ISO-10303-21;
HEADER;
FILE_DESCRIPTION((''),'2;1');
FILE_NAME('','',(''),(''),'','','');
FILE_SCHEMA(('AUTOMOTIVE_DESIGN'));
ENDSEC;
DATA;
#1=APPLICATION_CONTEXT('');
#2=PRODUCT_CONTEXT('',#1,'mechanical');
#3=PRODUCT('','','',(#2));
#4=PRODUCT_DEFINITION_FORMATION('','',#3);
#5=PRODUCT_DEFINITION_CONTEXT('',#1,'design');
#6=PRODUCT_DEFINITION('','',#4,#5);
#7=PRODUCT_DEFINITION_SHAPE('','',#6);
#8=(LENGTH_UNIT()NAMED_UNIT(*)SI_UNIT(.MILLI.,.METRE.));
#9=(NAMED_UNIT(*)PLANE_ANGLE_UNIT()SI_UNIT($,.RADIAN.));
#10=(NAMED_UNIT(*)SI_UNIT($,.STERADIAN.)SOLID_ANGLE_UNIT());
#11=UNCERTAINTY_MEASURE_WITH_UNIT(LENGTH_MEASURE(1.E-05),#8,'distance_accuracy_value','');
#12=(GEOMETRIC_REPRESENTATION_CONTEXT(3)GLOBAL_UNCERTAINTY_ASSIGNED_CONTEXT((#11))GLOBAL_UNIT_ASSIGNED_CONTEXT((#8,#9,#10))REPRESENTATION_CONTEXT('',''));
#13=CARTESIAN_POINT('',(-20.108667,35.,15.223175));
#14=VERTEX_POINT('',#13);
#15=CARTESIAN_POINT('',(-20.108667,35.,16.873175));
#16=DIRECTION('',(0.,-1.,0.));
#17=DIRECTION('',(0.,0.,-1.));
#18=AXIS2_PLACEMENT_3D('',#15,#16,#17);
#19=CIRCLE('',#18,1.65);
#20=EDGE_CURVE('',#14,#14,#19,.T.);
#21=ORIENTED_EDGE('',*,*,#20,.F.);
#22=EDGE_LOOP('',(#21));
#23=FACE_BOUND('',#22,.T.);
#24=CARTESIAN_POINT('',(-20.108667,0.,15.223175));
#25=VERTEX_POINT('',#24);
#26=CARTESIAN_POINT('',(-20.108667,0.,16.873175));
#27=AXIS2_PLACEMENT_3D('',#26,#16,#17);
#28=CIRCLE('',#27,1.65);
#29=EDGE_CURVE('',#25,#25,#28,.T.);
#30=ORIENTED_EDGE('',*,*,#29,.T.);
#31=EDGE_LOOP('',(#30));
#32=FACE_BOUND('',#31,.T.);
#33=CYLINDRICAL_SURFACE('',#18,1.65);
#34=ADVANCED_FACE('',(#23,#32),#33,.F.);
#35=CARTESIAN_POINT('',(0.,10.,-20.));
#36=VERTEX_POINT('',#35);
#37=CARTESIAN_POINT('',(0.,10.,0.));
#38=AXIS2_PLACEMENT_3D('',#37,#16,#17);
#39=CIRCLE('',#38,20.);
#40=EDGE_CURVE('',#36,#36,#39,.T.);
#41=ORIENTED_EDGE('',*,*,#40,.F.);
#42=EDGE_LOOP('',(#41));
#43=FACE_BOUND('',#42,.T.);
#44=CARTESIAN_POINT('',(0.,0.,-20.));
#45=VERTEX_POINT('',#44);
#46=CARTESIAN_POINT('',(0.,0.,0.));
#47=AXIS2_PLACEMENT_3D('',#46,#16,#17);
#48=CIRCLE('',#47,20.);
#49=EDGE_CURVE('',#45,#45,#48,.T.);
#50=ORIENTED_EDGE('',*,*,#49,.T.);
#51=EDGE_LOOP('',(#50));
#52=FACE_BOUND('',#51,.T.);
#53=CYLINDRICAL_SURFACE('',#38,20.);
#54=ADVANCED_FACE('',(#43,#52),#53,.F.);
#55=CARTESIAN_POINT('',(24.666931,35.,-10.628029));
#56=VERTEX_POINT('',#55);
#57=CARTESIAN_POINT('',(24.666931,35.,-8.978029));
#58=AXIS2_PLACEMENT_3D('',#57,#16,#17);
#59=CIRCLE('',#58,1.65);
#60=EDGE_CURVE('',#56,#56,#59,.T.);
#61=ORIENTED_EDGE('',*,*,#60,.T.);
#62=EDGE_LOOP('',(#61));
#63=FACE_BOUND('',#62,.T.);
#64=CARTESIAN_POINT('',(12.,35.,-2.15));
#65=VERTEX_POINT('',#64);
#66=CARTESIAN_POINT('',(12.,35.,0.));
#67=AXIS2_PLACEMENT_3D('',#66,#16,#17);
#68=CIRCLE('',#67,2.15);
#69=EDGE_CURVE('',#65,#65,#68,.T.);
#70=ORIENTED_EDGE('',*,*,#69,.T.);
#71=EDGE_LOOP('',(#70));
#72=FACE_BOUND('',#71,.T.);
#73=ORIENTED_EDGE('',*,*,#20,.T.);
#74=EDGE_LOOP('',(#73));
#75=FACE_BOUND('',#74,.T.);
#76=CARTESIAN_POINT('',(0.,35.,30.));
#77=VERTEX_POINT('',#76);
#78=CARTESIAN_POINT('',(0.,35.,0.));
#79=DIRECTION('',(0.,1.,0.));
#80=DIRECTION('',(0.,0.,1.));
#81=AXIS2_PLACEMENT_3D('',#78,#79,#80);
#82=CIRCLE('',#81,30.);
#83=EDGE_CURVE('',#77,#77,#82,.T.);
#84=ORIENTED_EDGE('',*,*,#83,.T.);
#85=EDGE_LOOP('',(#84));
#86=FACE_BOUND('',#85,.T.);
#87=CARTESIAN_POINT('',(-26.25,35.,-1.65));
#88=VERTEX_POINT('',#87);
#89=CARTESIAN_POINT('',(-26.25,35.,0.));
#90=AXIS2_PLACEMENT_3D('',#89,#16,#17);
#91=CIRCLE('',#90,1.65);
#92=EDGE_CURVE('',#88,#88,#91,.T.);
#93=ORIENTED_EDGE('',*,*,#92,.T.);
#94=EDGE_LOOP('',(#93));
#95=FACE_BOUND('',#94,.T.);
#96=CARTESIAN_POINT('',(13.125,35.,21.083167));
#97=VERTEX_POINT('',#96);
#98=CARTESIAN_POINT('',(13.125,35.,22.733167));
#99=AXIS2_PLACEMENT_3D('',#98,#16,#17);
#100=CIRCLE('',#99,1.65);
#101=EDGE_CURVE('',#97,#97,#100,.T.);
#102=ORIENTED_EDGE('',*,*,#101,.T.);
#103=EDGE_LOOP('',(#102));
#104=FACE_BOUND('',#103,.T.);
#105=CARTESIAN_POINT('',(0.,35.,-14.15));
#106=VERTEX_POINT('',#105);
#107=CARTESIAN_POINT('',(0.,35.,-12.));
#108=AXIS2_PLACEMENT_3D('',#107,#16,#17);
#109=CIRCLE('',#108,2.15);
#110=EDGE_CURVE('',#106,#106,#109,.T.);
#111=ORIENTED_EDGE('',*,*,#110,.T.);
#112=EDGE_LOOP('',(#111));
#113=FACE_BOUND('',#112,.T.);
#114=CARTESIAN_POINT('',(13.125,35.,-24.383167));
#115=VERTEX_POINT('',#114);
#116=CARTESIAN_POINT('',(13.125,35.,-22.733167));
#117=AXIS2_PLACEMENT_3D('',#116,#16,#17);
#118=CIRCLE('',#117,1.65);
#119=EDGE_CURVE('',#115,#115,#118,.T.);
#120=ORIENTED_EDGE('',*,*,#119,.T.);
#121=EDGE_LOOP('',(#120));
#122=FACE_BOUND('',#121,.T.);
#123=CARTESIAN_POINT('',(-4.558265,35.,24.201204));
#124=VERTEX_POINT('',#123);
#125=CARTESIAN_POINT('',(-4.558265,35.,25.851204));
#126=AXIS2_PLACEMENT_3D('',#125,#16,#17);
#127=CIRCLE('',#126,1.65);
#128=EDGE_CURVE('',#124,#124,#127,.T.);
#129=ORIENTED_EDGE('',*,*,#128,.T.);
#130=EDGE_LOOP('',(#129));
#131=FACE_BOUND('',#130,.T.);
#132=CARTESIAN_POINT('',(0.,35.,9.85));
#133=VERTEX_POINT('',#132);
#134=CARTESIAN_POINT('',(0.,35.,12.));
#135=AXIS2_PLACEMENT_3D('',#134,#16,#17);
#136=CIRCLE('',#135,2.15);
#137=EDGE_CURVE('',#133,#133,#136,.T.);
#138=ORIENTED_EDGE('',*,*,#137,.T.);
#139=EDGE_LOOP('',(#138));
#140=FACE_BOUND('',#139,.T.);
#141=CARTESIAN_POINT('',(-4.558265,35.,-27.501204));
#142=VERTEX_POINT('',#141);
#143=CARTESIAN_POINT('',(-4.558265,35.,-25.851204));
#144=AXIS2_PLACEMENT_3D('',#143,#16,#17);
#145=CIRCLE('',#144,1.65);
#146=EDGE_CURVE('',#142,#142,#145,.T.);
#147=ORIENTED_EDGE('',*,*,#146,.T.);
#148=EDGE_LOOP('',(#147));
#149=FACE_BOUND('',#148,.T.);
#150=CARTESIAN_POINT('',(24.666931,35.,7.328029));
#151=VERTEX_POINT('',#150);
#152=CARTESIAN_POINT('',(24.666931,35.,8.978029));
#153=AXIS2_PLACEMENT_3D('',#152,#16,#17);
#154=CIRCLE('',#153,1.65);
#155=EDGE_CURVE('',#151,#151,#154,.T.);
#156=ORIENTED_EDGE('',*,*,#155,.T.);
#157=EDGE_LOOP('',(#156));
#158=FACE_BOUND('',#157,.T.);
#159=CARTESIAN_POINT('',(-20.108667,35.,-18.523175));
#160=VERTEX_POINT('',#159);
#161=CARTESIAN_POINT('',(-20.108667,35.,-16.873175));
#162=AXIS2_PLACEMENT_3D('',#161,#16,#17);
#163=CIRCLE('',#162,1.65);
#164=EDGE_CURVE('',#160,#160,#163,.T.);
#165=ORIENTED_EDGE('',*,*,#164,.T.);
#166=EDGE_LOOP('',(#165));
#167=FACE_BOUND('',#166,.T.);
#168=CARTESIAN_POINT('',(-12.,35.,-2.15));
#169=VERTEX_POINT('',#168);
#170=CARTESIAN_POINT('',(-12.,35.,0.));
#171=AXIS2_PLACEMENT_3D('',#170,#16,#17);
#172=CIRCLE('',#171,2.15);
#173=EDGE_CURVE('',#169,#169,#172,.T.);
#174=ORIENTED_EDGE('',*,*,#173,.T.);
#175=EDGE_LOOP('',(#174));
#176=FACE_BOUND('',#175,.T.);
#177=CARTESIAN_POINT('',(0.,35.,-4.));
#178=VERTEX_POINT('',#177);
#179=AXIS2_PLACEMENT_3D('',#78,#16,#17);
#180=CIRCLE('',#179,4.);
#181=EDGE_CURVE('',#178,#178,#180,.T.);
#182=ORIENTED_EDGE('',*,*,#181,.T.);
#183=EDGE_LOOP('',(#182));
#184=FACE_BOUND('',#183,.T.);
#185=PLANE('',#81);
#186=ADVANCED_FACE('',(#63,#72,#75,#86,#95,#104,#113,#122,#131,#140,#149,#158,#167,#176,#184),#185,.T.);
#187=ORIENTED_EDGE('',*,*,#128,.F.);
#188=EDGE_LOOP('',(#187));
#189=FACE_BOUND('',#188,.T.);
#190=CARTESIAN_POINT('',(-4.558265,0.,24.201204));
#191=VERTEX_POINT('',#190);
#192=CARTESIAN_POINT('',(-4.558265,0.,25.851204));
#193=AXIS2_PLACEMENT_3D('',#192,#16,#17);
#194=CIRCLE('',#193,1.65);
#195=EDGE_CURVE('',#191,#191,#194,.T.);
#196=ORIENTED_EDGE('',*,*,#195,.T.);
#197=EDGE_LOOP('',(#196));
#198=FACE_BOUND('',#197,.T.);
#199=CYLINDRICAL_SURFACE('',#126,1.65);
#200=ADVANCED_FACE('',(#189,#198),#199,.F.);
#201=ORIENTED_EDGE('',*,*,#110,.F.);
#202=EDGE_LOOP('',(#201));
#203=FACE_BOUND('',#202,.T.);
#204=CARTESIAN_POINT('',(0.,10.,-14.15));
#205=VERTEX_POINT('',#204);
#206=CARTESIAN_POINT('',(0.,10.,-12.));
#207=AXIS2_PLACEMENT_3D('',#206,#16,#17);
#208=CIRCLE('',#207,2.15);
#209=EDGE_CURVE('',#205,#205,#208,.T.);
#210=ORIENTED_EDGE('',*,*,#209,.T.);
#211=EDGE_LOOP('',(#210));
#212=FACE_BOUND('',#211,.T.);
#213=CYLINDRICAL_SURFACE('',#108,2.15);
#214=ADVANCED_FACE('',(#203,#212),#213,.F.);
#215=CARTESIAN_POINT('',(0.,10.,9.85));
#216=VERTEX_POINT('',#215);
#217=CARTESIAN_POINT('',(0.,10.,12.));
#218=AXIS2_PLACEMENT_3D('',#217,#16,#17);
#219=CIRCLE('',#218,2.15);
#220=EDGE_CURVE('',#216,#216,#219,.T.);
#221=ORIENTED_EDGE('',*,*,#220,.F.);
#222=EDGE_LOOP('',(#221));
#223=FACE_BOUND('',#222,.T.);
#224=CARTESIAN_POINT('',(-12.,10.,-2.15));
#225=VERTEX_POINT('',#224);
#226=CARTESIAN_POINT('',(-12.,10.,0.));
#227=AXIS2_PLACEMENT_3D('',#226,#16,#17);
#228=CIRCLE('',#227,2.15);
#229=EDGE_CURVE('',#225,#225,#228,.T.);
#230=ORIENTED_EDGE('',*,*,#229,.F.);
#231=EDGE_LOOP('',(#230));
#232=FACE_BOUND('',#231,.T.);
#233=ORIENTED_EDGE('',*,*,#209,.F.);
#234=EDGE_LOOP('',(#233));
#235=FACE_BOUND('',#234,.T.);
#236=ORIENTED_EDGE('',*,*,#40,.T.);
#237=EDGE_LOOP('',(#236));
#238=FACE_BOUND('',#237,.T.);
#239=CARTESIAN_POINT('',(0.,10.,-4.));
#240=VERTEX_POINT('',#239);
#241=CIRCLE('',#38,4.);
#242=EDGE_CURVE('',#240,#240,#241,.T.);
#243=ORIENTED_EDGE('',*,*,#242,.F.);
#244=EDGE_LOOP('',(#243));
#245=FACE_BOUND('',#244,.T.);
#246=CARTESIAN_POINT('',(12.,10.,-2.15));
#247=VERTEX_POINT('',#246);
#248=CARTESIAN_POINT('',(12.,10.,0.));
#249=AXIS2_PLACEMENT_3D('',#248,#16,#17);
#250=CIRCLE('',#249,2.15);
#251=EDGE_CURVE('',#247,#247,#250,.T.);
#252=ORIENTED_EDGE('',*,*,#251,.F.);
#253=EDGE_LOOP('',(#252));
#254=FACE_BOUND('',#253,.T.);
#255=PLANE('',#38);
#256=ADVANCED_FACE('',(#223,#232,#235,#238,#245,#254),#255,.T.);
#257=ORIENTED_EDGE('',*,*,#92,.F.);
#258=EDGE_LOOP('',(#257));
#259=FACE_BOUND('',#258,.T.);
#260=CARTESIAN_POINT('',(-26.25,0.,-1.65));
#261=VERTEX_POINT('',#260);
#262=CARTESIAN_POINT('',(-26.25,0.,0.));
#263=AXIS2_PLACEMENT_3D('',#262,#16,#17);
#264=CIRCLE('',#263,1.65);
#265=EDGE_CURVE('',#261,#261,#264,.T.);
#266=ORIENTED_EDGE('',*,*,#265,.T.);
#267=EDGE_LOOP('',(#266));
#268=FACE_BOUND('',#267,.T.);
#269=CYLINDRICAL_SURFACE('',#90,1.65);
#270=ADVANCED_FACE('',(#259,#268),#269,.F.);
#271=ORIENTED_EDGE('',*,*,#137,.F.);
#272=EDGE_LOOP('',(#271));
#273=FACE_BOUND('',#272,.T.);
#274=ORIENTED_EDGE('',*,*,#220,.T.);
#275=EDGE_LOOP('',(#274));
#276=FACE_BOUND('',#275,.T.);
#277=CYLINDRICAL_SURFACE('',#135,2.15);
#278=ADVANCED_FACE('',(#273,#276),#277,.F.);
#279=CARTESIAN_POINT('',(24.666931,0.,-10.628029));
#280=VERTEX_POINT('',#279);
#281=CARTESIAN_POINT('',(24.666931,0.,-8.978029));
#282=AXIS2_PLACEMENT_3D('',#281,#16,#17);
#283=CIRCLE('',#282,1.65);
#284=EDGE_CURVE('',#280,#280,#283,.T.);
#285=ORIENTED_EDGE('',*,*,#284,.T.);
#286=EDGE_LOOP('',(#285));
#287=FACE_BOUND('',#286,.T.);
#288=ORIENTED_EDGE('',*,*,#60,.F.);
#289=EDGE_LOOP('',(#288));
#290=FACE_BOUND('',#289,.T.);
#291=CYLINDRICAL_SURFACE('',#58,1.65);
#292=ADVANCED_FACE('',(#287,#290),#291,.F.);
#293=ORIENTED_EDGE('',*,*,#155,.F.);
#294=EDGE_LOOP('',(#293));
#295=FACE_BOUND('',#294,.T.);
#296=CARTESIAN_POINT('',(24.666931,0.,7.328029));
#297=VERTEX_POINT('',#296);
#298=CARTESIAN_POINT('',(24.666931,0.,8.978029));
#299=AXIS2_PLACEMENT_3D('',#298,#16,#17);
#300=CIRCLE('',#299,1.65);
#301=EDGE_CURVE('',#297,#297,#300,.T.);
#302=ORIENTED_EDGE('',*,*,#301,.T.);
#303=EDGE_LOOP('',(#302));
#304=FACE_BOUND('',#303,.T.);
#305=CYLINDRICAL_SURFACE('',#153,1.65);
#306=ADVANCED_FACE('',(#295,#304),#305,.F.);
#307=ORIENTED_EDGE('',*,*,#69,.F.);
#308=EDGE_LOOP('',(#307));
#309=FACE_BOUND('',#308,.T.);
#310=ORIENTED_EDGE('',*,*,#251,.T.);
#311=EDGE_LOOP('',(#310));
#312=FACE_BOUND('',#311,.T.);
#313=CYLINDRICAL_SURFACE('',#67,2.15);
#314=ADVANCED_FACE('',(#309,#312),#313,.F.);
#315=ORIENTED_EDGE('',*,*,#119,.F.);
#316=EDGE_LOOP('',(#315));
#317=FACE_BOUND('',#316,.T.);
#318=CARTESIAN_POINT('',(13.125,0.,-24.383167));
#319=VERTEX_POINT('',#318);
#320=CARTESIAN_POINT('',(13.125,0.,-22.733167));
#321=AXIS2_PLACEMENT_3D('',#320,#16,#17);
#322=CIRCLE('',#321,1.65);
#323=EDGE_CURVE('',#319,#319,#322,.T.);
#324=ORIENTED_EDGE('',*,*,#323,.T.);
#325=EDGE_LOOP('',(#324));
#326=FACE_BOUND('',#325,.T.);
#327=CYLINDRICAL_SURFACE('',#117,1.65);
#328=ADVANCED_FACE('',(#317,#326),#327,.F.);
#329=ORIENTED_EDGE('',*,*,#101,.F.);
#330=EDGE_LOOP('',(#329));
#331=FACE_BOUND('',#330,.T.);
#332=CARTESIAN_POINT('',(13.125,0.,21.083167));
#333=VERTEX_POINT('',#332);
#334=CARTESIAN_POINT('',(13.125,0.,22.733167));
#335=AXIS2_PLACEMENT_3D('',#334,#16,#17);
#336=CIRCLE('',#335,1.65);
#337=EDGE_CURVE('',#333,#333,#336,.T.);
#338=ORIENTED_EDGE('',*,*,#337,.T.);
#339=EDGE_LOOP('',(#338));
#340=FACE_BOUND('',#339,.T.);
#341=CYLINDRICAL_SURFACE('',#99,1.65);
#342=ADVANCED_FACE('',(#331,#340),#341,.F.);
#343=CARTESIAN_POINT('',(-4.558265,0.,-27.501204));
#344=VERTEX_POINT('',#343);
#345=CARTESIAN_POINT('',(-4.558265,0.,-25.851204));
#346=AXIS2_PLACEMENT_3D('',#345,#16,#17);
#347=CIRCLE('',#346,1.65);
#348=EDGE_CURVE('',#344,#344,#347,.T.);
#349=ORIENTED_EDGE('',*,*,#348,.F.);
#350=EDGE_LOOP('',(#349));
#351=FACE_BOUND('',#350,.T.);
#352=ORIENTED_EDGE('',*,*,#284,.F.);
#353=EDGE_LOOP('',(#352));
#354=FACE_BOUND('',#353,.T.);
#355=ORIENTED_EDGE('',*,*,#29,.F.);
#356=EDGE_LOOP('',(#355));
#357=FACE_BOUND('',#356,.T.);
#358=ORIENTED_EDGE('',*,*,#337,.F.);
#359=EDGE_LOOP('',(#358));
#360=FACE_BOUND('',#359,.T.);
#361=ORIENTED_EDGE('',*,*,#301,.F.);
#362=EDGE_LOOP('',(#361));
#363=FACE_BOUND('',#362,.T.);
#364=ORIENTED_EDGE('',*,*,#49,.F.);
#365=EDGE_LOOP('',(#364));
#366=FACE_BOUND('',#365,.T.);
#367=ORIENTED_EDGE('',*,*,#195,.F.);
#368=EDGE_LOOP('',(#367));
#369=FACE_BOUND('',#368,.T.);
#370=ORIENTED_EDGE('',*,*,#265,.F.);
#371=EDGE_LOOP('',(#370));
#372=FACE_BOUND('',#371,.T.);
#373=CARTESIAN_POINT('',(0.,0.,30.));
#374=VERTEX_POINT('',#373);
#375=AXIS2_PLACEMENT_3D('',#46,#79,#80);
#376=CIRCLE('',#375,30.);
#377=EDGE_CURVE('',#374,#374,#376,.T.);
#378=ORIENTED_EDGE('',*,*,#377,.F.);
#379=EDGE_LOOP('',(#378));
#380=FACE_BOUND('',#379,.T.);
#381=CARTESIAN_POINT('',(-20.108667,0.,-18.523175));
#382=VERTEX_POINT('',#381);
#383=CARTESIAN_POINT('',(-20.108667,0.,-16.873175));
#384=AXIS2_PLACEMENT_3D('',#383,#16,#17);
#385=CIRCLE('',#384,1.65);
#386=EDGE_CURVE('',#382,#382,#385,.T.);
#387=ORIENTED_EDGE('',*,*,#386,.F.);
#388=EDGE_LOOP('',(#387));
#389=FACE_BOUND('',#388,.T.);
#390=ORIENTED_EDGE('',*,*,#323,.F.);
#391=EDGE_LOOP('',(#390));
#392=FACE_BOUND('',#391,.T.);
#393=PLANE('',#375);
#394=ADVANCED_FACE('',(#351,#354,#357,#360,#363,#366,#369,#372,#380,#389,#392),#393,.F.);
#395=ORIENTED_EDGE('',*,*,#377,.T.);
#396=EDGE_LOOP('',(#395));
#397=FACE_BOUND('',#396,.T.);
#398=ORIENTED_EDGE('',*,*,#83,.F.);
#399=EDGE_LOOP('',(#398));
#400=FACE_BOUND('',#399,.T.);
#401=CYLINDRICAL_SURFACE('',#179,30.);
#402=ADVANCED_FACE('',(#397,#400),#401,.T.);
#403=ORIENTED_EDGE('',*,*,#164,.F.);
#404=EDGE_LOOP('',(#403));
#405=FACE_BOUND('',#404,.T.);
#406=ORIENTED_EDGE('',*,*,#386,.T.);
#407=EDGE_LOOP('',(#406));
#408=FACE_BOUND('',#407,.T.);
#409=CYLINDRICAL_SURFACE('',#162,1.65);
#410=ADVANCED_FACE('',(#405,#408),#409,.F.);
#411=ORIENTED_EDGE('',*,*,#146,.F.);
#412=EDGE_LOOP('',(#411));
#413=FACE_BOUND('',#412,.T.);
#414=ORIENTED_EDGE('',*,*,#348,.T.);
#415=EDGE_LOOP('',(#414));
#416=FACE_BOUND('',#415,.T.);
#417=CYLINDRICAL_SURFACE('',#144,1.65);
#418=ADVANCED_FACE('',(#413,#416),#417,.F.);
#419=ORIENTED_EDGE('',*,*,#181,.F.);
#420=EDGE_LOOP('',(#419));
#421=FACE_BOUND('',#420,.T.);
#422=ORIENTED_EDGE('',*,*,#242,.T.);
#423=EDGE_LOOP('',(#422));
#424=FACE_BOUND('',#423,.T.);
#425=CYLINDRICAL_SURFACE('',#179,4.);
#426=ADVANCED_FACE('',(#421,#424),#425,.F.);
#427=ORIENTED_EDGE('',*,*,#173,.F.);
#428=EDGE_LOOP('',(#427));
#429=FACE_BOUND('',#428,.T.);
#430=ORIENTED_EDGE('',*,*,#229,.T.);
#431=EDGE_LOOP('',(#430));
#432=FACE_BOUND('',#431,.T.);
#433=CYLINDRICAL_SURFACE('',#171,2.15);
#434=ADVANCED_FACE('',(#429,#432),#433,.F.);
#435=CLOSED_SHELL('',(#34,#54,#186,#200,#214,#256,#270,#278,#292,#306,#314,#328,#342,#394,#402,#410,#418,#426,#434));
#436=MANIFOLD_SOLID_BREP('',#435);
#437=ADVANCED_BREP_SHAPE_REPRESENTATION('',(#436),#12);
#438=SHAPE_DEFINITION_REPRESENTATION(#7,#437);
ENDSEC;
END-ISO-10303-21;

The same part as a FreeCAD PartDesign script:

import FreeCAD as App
import Part
import Sketcher
Q = App.Units.Quantity

doc = App.newDocument("Part")
body = doc.addObject("PartDesign::Body", "Body")

sketch1 = doc.addObject("Sketcher::SketchObject", "Sketch")
body.addObject(sketch1)
sketch1.AttachmentSupport = (doc.XZ_Plane, [""])
sketch1.MapMode = "FlatFace"
sketch1.addGeometry(Part.Circle(App.Vector(0, 0, 0), App.Vector(0, 0, 1), 30), False)
sketch1.addConstraint([
    Sketcher.Constraint("Coincident", 0, 3, -1, 1),
    Sketcher.Constraint("Diameter", 0, Q("60 mm")),
])
pad1 = doc.addObject("PartDesign::Pad", "Pad")
body.addObject(pad1)
pad1.Profile = sketch1
pad1.Length = 35
pad1.Reversed = True

sketch2 = doc.addObject("Sketcher::SketchObject", "Sketch001")
body.addObject(sketch2)
sketch2.AttachmentSupport = (doc.XZ_Plane, [""])
sketch2.MapMode = "FlatFace"
sketch2.addGeometry([
    Part.Circle(App.Vector(-26.2, 0, 0), App.Vector(0, 0, 1), 1.6),
    Part.Circle(App.Vector(-20.1, 16.9, 0), App.Vector(0, 0, 1), 1.6),
    Part.Circle(App.Vector(-4.6, 25.9, 0), App.Vector(0, 0, 1), 1.6),
    Part.Circle(App.Vector(13.1, 22.7, 0), App.Vector(0, 0, 1), 1.6),
    Part.Circle(App.Vector(24.7, 9, 0), App.Vector(0, 0, 1), 1.6),
    Part.Circle(App.Vector(24.7, -9, 0), App.Vector(0, 0, 1), 1.6),
    Part.Circle(App.Vector(13.1, -22.7, 0), App.Vector(0, 0, 1), 1.6),
    Part.Circle(App.Vector(-4.6, -25.9, 0), App.Vector(0, 0, 1), 1.6),
    Part.Circle(App.Vector(-20.1, -16.9, 0), App.Vector(0, 0, 1), 1.6),
], False)
sketch2.addConstraint([
    Sketcher.Constraint("Equal", 0, 1),
    Sketcher.Constraint("Equal", 1, 2),
    Sketcher.Constraint("Equal", 2, 3),
    Sketcher.Constraint("Equal", 3, 4),
    Sketcher.Constraint("Equal", 4, 5),
    Sketcher.Constraint("Equal", 5, 6),
    Sketcher.Constraint("Equal", 6, 7),
    Sketcher.Constraint("Equal", 7, 8),
    Sketcher.Constraint("Symmetric", 4, 3, 5, 3, -1),
    Sketcher.Constraint("Symmetric", 3, 3, 6, 3, -1),
    Sketcher.Constraint("Symmetric", 2, 3, 7, 3, -1),
    Sketcher.Constraint("Symmetric", 1, 3, 8, 3, -1),
    Sketcher.Constraint("PointOnObject", 0, 3, -1),
    Sketcher.Constraint("Diameter", 0, Q("3.3 mm")),
    Sketcher.Constraint("DistanceX", 0, 3, -1, 1, Q("26.25 mm")),
    Sketcher.Constraint("DistanceX", -1, 1, 3, 3, Q("13.125 mm")),
    Sketcher.Constraint("DistanceX", 1, 3, 2, 3, Q("15.550402 mm")),
    Sketcher.Constraint("DistanceX", -1, 1, 4, 3, Q("24.666931 mm")),
    Sketcher.Constraint("DistanceY", -1, 1, 4, 3, Q("8.978029 mm")),
    Sketcher.Constraint("DistanceY", 1, 3, 2, 3, Q("8.978029 mm")),
    Sketcher.Constraint("DistanceY", 4, 3, 3, 3, Q("13.755138 mm")),
    Sketcher.Constraint("DistanceY", 6, 3, 1, 3, Q("39.606342 mm")),
    Sketcher.Constraint("DistanceX", 1, 3, -1, 1, Q("20.108667 mm")),
])
pocket1 = doc.addObject("PartDesign::Pocket", "Pocket")
body.addObject(pocket1)
pocket1.Profile = sketch2
pocket1.Type = "ThroughAll"

sketch3 = doc.addObject("Sketcher::SketchObject", "Sketch002")
body.addObject(sketch3)
sketch3.AttachmentSupport = (doc.XZ_Plane, [""])
sketch3.MapMode = "FlatFace"
sketch3.addGeometry(Part.Circle(App.Vector(0, 0, 0), App.Vector(0, 0, 1), 20), False)
sketch3.addConstraint([
    Sketcher.Constraint("Coincident", 0, 3, -1, 1),
    Sketcher.Constraint("Diameter", 0, Q("40 mm")),
])
pocket2 = doc.addObject("PartDesign::Pocket", "Pocket001")
body.addObject(pocket2)
pocket2.Profile = sketch3
pocket2.Length = 10

sketch4 = doc.addObject("Sketcher::SketchObject", "Sketch003")
body.addObject(sketch4)
sketch4.AttachmentSupport = (doc.XZ_Plane, [""])
sketch4.MapMode = "FlatFace"
sketch4.AttachmentOffset = App.Placement(App.Vector(0, 0, -10), App.Rotation())
sketch4.addGeometry(Part.Circle(App.Vector(0, 0, 0), App.Vector(0, 0, 1), 4), False)
sketch4.addConstraint([
    Sketcher.Constraint("Coincident", 0, 3, -1, 1),
    Sketcher.Constraint("Diameter", 0, Q("8 mm")),
])
pocket3 = doc.addObject("PartDesign::Pocket", "Pocket002")
body.addObject(pocket3)
pocket3.Profile = sketch4
pocket3.Type = "ThroughAll"

sketch5 = doc.addObject("Sketcher::SketchObject", "Sketch004")
body.addObject(sketch5)
sketch5.AttachmentSupport = (doc.XZ_Plane, [""])
sketch5.MapMode = "FlatFace"
sketch5.AttachmentOffset = App.Placement(App.Vector(0, 0, -10), App.Rotation())
sketch5.addGeometry([
    Part.Circle(App.Vector(0, 12, 0), App.Vector(0, 0, 1), 2.1),
    Part.Circle(App.Vector(12, 0, 0), App.Vector(0, 0, 1), 2.1),
    Part.Circle(App.Vector(0, -12, 0), App.Vector(0, 0, 1), 2.1),
    Part.Circle(App.Vector(-12, 0, 0), App.Vector(0, 0, 1), 2.1),
], False)
sketch5.addConstraint([
    Sketcher.Constraint("Equal", 0, 1),
    Sketcher.Constraint("Equal", 1, 2),
    Sketcher.Constraint("Equal", 2, 3),
    Sketcher.Constraint("Symmetric", 0, 3, 2, 3, -1, 1),
    Sketcher.Constraint("Symmetric", 1, 3, 3, 3, -1, 1),
    Sketcher.Constraint("PointOnObject", 0, 3, -2),
    Sketcher.Constraint("PointOnObject", 1, 3, -1),
    Sketcher.Constraint("Diameter", 0, Q("4.3 mm")),
    Sketcher.Constraint("DistanceY", -1, 1, 0, 3, Q("12 mm")),
    Sketcher.Constraint("DistanceX", -1, 1, 1, 3, Q("12 mm")),
])
pocket4 = doc.addObject("PartDesign::Pocket", "Pocket003")
body.addObject(pocket4)
pocket4.Profile = sketch5
pocket4.Type = "ThroughAll"

doc.recompute()
